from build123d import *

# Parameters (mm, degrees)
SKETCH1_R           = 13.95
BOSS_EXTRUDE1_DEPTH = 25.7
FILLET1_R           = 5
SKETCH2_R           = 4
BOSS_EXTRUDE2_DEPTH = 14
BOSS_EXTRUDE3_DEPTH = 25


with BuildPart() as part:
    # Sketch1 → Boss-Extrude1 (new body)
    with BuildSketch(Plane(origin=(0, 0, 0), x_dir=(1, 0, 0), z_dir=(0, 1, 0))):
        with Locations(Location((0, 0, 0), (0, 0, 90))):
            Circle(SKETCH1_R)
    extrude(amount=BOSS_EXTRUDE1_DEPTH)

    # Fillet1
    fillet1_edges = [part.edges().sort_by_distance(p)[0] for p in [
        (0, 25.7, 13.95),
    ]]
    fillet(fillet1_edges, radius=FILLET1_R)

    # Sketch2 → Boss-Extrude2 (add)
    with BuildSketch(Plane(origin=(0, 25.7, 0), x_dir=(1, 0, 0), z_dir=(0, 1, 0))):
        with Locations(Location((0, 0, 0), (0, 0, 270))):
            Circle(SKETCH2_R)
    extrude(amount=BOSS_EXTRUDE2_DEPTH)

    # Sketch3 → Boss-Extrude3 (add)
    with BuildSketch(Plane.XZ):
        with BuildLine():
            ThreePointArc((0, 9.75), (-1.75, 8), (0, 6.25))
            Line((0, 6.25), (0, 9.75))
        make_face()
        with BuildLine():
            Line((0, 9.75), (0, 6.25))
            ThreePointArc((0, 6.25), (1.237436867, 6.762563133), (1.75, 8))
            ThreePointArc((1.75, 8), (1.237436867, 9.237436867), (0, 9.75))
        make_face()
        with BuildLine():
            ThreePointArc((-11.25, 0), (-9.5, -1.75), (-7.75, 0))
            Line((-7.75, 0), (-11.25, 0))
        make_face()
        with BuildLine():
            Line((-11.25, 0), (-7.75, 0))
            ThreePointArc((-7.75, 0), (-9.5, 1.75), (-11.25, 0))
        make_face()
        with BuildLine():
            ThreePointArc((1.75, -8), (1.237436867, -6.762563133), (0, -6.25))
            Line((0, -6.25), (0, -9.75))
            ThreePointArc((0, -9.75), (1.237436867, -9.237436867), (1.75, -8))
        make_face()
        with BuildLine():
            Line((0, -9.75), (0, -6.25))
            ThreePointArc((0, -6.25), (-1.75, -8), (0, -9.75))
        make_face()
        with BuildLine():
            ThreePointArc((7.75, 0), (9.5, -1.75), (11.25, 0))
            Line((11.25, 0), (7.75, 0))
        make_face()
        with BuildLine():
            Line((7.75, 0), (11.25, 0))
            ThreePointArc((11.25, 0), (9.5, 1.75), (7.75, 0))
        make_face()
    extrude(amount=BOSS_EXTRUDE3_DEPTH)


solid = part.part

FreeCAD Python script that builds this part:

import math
import FreeCAD as App
import Part
import Sketcher
Q = App.Units.Quantity


def edges_at(feature, points):
    """Names of the edges that pass closest to the given points."""
    edges = feature.Shape.Edges
    near = lambda p: min(range(len(edges)), key=lambda i: edges[i].distToShape(Part.Vertex(*p))[0])
    return sorted({f"Edge{near(p) + 1}" for p in points})

doc = App.newDocument("Part")
body = doc.addObject("PartDesign::Body", "Body")

# Sketch on XZ plane
sketch1 = doc.addObject("Sketcher::SketchObject", "Sketch")
body.addObject(sketch1)
sketch1.AttachmentSupport = (doc.XZ_Plane, [""])
sketch1.MapMode = "FlatFace"
sketch1.addGeometry(Part.Circle(App.Vector(0, 0, 0), App.Vector(0, 0, 1), 13.95), False)
sketch1.addConstraint(Sketcher.Constraint("Coincident", 0, 3, -1, 1))
sketch1.addConstraint(Sketcher.Constraint("Diameter", 0, Q("27.9 mm")))
pad1 = doc.addObject("PartDesign::Pad", "Pad")
body.addObject(pad1)
pad1.Profile = sketch1
pad1.Length = 25.7
pad1.Reversed = True
doc.recompute()

fillet = doc.addObject("PartDesign::Fillet", "Fillet")
body.addObject(fillet)
fillet.Base = (pad1, edges_at(pad1, [(0, 25.7, 13.95)]))
fillet.Radius = 5

# Sketch on XZ plane
sketch2 = doc.addObject("Sketcher::SketchObject", "Sketch001")
body.addObject(sketch2)
sketch2.AttachmentSupport = (doc.XZ_Plane, [""])
sketch2.MapMode = "FlatFace"
sketch2.AttachmentOffset = App.Placement(App.Vector(0, 0, -25.7), App.Rotation())
sketch2.addGeometry(Part.Circle(App.Vector(0, 0, 0), App.Vector(0, 0, 1), 4), False)
sketch2.addConstraint(Sketcher.Constraint("Coincident", 0, 3, -1, 1))
sketch2.addConstraint(Sketcher.Constraint("Diameter", 0, Q("8 mm")))
pad2 = doc.addObject("PartDesign::Pad", "Pad001")
body.addObject(pad2)
pad2.Profile = sketch2
pad2.Length = 14
pad2.Reversed = True

# Sketch on XZ plane
sketch3 = doc.addObject("Sketcher::SketchObject", "Sketch002")
body.addObject(sketch3)
sketch3.AttachmentSupport = (doc.XZ_Plane, [""])
sketch3.MapMode = "FlatFace"
sketch3.addGeometry(Part.ArcOfCircle(Part.Circle(App.Vector(0, 8, 0), App.Vector(0, 0, 1), 1.75), math.radians(90), math.radians(270)), False)
sketch3.addGeometry(Part.ArcOfCircle(Part.Circle(App.Vector(0, 8, 0), App.Vector(0, 0, 1), 1.75), math.radians(-90), math.radians(0)), False)
sketch3.addGeometry(Part.ArcOfCircle(Part.Circle(App.Vector(0, 8, 0), App.Vector(0, 0, 1), 1.75), math.radians(0), math.radians(90)), False)
sketch3.addGeometry(Part.Circle(App.Vector(-9.5, 0, 0), App.Vector(0, 0, 1), 1.75), False)
sketch3.addGeometry(Part.ArcOfCircle(Part.Circle(App.Vector(0, -8, 0), App.Vector(0, 0, 1), 1.75), math.radians(0), math.radians(90)), False)
sketch3.addGeometry(Part.ArcOfCircle(Part.Circle(App.Vector(0, -8, 0), App.Vector(0, 0, 1), 1.75), math.radians(90), math.radians(270)), False)
sketch3.addGeometry(Part.ArcOfCircle(Part.Circle(App.Vector(0, -8, 0), App.Vector(0, 0, 1), 1.75), math.radians(-90), math.radians(0)), False)
sketch3.addGeometry(Part.Circle(App.Vector(9.5, 0, 0), App.Vector(0, 0, 1), 1.75), False)
sketch3.addConstraint(Sketcher.Constraint("Tangent", 0, 2, 1, 1))
sketch3.addConstraint(Sketcher.Constraint("Tangent", 1, 2, 2, 1))
sketch3.addConstraint(Sketcher.Constraint("Tangent", 2, 2, 0, 1))
sketch3.addConstraint(Sketcher.Constraint("Tangent", 4, 2, 5, 1))
sketch3.addConstraint(Sketcher.Constraint("Tangent", 5, 2, 6, 1))
sketch3.addConstraint(Sketcher.Constraint("Tangent", 6, 2, 4, 1))
sketch3.addConstraint(Sketcher.Constraint("Equal", 2, 3))
sketch3.addConstraint(Sketcher.Constraint("Equal", 3, 4))
sketch3.addConstraint(Sketcher.Constraint("Equal", 6, 7))
sketch3.addConstraint(Sketcher.Constraint("Symmetric", 0, 3, 4, 3, -1, 1))
sketch3.addConstraint(Sketcher.Constraint("Symmetric", 3, 3, 7, 3, -1, 1))
sketch3.addConstraint(Sketcher.Constraint("Symmetric", 1, 2, 6, 2, -1))
sketch3.addConstraint(Sketcher.Constraint("PointOnObject", 3, 3, -1))
sketch3.addConstraint(Sketcher.Constraint("PointOnObject", 0, 2, -2))
sketch3.addConstraint(Sketcher.Constraint("PointOnObject", 2, 2, -2))
sketch3.addConstraint(Sketcher.Constraint("PointOnObject", 4, 2, -2))
sketch3.addConstraint(Sketcher.Constraint("PointOnObject", 5, 2, -2))
sketch3.addConstraint(Sketcher.Constraint("Horizontal", 2, 3, 1, 2))
sketch3.addConstraint(Sketcher.Constraint("Diameter", 3, Q("3.5 mm")))
sketch3.addConstraint(Sketcher.Constraint("DistanceY", -1, 1, 0, 3, Q("8 mm")))
sketch3.addConstraint(Sketcher.Constraint("DistanceX", 3, 3, -1, 1, Q("9.5 mm")))
pad3 = doc.addObject("PartDesign::Pad", "Pad002")
body.addObject(pad3)
pad3.Profile = sketch3
pad3.Length = 25

doc.recompute()
